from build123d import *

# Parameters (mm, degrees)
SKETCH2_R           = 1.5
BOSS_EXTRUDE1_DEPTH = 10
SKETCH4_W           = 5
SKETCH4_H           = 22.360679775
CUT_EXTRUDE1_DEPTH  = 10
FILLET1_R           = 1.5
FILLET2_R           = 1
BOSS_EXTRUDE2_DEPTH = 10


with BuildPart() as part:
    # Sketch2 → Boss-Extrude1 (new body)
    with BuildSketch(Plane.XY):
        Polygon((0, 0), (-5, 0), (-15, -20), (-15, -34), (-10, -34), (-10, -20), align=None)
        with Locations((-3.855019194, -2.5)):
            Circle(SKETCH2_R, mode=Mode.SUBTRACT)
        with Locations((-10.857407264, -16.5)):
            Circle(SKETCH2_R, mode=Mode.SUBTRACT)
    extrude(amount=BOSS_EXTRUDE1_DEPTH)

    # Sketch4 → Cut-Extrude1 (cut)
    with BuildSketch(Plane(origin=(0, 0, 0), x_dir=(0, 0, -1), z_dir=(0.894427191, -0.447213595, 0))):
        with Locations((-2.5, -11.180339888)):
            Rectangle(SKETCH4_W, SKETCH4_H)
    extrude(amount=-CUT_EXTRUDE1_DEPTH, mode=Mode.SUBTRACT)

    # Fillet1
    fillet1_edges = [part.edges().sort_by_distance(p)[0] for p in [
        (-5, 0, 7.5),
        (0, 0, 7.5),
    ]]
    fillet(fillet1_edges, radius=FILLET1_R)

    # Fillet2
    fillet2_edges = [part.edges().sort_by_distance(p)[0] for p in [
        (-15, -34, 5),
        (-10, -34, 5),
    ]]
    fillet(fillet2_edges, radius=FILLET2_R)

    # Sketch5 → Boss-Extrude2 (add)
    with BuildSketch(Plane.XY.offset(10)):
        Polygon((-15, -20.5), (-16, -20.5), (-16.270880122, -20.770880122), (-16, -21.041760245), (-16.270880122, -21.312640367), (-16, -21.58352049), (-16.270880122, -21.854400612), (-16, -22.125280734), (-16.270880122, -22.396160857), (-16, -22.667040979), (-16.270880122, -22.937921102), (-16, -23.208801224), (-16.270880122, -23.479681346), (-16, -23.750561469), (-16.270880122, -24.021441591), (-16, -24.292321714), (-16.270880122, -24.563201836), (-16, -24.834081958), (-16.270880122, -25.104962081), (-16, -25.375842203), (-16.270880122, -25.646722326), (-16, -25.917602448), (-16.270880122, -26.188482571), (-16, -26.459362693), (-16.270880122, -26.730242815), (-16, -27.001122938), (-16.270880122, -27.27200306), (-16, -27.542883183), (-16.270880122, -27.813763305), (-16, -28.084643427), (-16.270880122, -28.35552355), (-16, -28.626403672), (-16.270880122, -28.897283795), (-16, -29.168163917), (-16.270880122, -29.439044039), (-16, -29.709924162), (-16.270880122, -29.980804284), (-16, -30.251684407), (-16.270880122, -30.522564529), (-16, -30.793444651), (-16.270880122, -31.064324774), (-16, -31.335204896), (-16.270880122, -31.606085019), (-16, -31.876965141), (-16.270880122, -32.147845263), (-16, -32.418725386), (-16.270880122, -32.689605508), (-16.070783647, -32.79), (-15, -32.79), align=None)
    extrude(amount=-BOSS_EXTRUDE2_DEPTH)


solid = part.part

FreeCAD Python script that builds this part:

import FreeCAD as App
import Part
import Sketcher
from FreeCAD import Vector


def edges_at(feature, points):
    """Names of the edges that pass closest to the given points."""
    edges = feature.Shape.Edges
    near = lambda p: min(range(len(edges)), key=lambda i: edges[i].distToShape(Part.Vertex(*p))[0])
    return sorted({f"Edge{near(p) + 1}" for p in points})


def add_polygon(sketch, points):
    """Adds a closed chain of lines whose ends are joined by coincident constraints."""
    first, n = sketch.GeometryCount, len(points)
    for a, b in zip(points, points[1:] + points[:1]):
        sketch.addGeometry(Part.LineSegment(App.Vector(*a, 0), App.Vector(*b, 0)), False)
    for i in range(n):
        sketch.addConstraint(Sketcher.Constraint("Coincident", first + i, 2, first + (i + 1) % n, 1))

doc = App.newDocument("Part")
params = doc.addObject("Spreadsheet::Sheet", "Params")
for row, (alias, value) in enumerate([
    ("sketch1_diameter", "3 mm"),
    ("sketch1_width", "5 mm"),
    ("sketch1_height", "14 mm"),
    ("pad1_length", "10 mm"),
    ("sketch2_width", "5 mm"),
    ("pocket1_length", "10 mm"),
    ("fillet_radius", "1.5 mm"),
    ("fillet2_radius", "1 mm"),
    ("sketch3_width", "1 mm"),
    ("sketch3_height", "12.29 mm"),
    ("pad2_length", "10 mm"),
], start=1):
    params.set(f"A{row}", alias)
    params.set(f"B{row}", "=" + value)
    params.setAlias(f"B{row}", alias)

body = doc.addObject("PartDesign::Body", "Body")

# Sketch on XY plane
sketch1 = body.newObject("Sketcher::SketchObject", "Sketch")
sketch1.AttachmentSupport = (doc.getObject("XY_Plane"), [""])
sketch1.MapMode = "FlatFace"
add_polygon(sketch1, [(0, 0), (-5, 0), (-15, -20), (-15, -34), (-10, -34), (-10, -20)])  # lines 0-5
sketch1.addGeometry(Part.Circle(Vector(-10.857407, -16.5, 0), Vector(0, 0, 1), 1.5), False)  # 6
sketch1.addGeometry(Part.Circle(Vector(-3.855019, -2.5, 0), Vector(0, 0, 1), 1.5), False)  # 7
sketch1.addConstraint([
    Sketcher.Constraint("Horizontal", 0),
    Sketcher.Constraint("Vertical", 2),
    Sketcher.Constraint("Horizontal", 3),
    Sketcher.Constraint("Vertical", 4),
    Sketcher.Constraint("Coincident", 5, 2, -1, 1),
    Sketcher.Constraint("Equal", 6, 7),
    Sketcher.Constraint("Parallel", 1, 5),
    Sketcher.Constraint("Horizontal", 1, 2, 4, 2),
    Sketcher.Constraint("Diameter", 6, 3.0),
    Sketcher.Constraint("DistanceX", 0, 2, 0, 1, 5.0),
    Sketcher.Constraint("DistanceY", 2, 2, 2, 1, 14.0),
    Sketcher.Constraint("DistanceX", 1, 2, -1, 1, 15.0),
    Sketcher.Constraint("DistanceY", 1, 2, -1, 1, 20.0),
    Sketcher.Constraint("DistanceY", 6, 3, 7, 3, 14.0),
    Sketcher.Constraint("DistanceY", 6, 3, -1, 1, 16.5),
    Sketcher.Constraint("DistanceX", 7, 3, -1, 1, 3.855019),
    Sketcher.Constraint("DistanceX", 6, 3, 7, 3, 7.002388),
])
sketch1.setExpression("Constraints[14]", "Params.sketch1_diameter")
sketch1.setExpression("Constraints[15]", "Params.sketch1_width")
sketch1.setExpression("Constraints[16]", "Params.sketch1_height")
pad1 = body.newObject("PartDesign::Pad", "Pad")
pad1.Profile = sketch1
pad1.setExpression("Length", "Params.pad1_length")

# Sketch on an angled plane
sketch2 = body.newObject("Sketcher::SketchObject", "Sketch001")
sketch2.Placement = App.Placement(Vector(0, 0, 0), App.Rotation(Vector(0, 0, -1), Vector(0.447213595, 0.894427191, 0), Vector(0.894427191, -0.447213595, 0), "ZXY"))
add_polygon(sketch2, [(-5, 0), (-5, -22.36068), (0, -22.36068), (0, 0)])  # lines 0-3
sketch2.addConstraint([
    Sketcher.Constraint("Vertical", 0),
    Sketcher.Constraint("Horizontal", 1),
    Sketcher.Constraint("Vertical", 2),
    Sketcher.Constraint("Horizontal", 3),
    Sketcher.Constraint("Coincident", 2, 2, -1, 1),
    Sketcher.Constraint("DistanceX", 1, 1, 1, 2, 5.0),
    Sketcher.Constraint("DistanceY", 0, 2, 0, 1, 22.36068),
])
sketch2.setExpression("Constraints[9]", "Params.sketch2_width")
pocket1 = body.newObject("PartDesign::Pocket", "Pocket")
pocket1.Profile = sketch2
pocket1.setExpression("Length", "Params.pocket1_length")
doc.recompute()

fillet = body.newObject("PartDesign::Fillet", "Fillet")
fillet.Base = (pocket1, edges_at(pocket1, [(-5, 0, 7.5), (0, 0, 7.5)]))
fillet.setExpression("Radius", "Params.fillet_radius")
doc.recompute()

fillet2 = body.newObject("PartDesign::Fillet", "Fillet001")
fillet2.Base = (fillet, edges_at(fillet, [(-15, -34, 5), (-10, -34, 5)]))
fillet2.setExpression("Radius", "Params.fillet2_radius")

# Sketch on XY plane
sketch3 = body.newObject("Sketcher::SketchObject", "Sketch002")
sketch3.AttachmentSupport = (doc.getObject("XY_Plane"), [""])
sketch3.MapMode = "FlatFace"
sketch3.AttachmentOffset = App.Placement(Vector(0, 0, 10), App.Rotation())
add_polygon(sketch3, [(-15, -20.5), (-16, -20.5), (-16.27088, -20.77088), (-16, -21.04176), (-16.27088, -21.31264), (-16, -21.58352), (-16.27088, -21.854401), (-16, -22.125281), (-16.27088, -22.396161), (-16, -22.667041), (-16.27088, -22.937921), (-16, -23.208801), (-16.27088, -23.479681), (-16, -23.750561), (-16.27088, -24.021442), (-16, -24.292322), (-16.27088, -24.563202), (-16, -24.834082), (-16.27088, -25.104962), (-16, -25.375842), (-16.27088, -25.646722), (-16, -25.917602), (-16.27088, -26.188483), (-16, -26.459363), (-16.27088, -26.730243), (-16, -27.001123), (-16.27088, -27.272003), (-16, -27.542883), (-16.27088, -27.813763), (-16, -28.084643), (-16.27088, -28.355524), (-16, -28.626404), (-16.27088, -28.897284), (-16, -29.168164), (-16.27088, -29.439044), (-16, -29.709924), (-16.27088, -29.980804), (-16, -30.251684), (-16.27088, -30.522565), (-16, -30.793445), (-16.27088, -31.064325), (-16, -31.335205), (-16.27088, -31.606085), (-16, -31.876965), (-16.27088, -32.147845), (-16, -32.418725), (-16.27088, -32.689606), (-16.070784, -32.79), (-15, -32.79)])  # lines 0-48
sketch3.addConstraint([
    Sketcher.Constraint("Horizontal", 0),
    Sketcher.Constraint("Horizontal", 47),
    Sketcher.Constraint("Vertical", 48),
    Sketcher.Constraint("Perpendicular", 1, 2),
    Sketcher.Constraint("Perpendicular", 2, 3),
    Sketcher.Constraint("Perpendicular", 3, 4),
    Sketcher.Constraint("Perpendicular", 4, 5),
    Sketcher.Constraint("Perpendicular", 5, 6),
    Sketcher.Constraint("Perpendicular", 6, 7),
    Sketcher.Constraint("Perpendicular", 7, 8),
    Sketcher.Constraint("Perpendicular", 8, 9),
    Sketcher.Constraint("Perpendicular", 9, 10),
    Sketcher.Constraint("Perpendicular", 10, 11),
    Sketcher.Constraint("Perpendicular", 11, 12),
    Sketcher.Constraint("Perpendicular", 12, 13),
    Sketcher.Constraint("Perpendicular", 13, 14),
    Sketcher.Constraint("Perpendicular", 14, 15),
    Sketcher.Constraint("Perpendicular", 15, 16),
    Sketcher.Constraint("Perpendicular", 16, 17),
    Sketcher.Constraint("Perpendicular", 17, 18),
    Sketcher.Constraint("Perpendicular", 18, 19),
    Sketcher.Constraint("Perpendicular", 19, 20),
    Sketcher.Constraint("Perpendicular", 20, 21),
    Sketcher.Constraint("Perpendicular", 21, 22),
    Sketcher.Constraint("Perpendicular", 22, 23),
    Sketcher.Constraint("Perpendicular", 23, 24),
    Sketcher.Constraint("Perpendicular", 24, 25),
    Sketcher.Constraint("Perpendicular", 25, 26),
    Sketcher.Constraint("Perpendicular", 26, 27),
    Sketcher.Constraint("Perpendicular", 27, 28),
    Sketcher.Constraint("Perpendicular", 28, 29),
    Sketcher.Constraint("Perpendicular", 29, 30),
    Sketcher.Constraint("Perpendicular", 30, 31),
    Sketcher.Constraint("Perpendicular", 31, 32),
    Sketcher.Constraint("Perpendicular", 32, 33),
    Sketcher.Constraint("Perpendicular", 33, 34),
    Sketcher.Constraint("Perpendicular", 34, 35),
    Sketcher.Constraint("Perpendicular", 35, 36),
    Sketcher.Constraint("Perpendicular", 36, 37),
    Sketcher.Constraint("Perpendicular", 37, 38),
    Sketcher.Constraint("Perpendicular", 38, 39),
    Sketcher.Constraint("Perpendicular", 39, 40),
    Sketcher.Constraint("Perpendicular", 40, 41),
    Sketcher.Constraint("Perpendicular", 41, 42),
    Sketcher.Constraint("Perpendicular", 42, 43),
    Sketcher.Constraint("Perpendicular", 43, 44),
    Sketcher.Constraint("Perpendicular", 44, 45),
    Sketcher.Constraint("Vertical", 0, 2, 2, 2),
    Sketcher.Constraint("Vertical", 1, 2, 3, 2),
    Sketcher.Constraint("Vertical", 2, 2, 4, 2),
    Sketcher.Constraint("Vertical", 3, 2, 5, 2),
    Sketcher.Constraint("Vertical", 4, 2, 6, 2),
    Sketcher.Constraint("Vertical", 5, 2, 7, 2),
    Sketcher.Constraint("Vertical", 6, 2, 8, 2),
    Sketcher.Constraint("Vertical", 7, 2, 9, 2),
    Sketcher.Constraint("Vertical", 8, 2, 10, 2),
    Sketcher.Constraint("Vertical", 9, 2, 11, 2),
    Sketcher.Constraint("Vertical", 10, 2, 12, 2),
    Sketcher.Constraint("Vertical", 11, 2, 13, 2),
    Sketcher.Constraint("Vertical", 12, 2, 14, 2),
    Sketcher.Constraint("Vertical", 13, 2, 15, 2),
    Sketcher.Constraint("Vertical", 14, 2, 16, 2),
    Sketcher.Constraint("Vertical", 15, 2, 17, 2),
    Sketcher.Constraint("Vertical", 16, 2, 18, 2),
    Sketcher.Constraint("Vertical", 17, 2, 19, 2),
    Sketcher.Constraint("Vertical", 18, 2, 20, 2),
    Sketcher.Constraint("Vertical", 19, 2, 21, 2),
    Sketcher.Constraint("Vertical", 20, 2, 22, 2),
    Sketcher.Constraint("Vertical", 21, 2, 23, 2),
    Sketcher.Constraint("Vertical", 22, 2, 24, 2),
    Sketcher.Constraint("Vertical", 23, 2, 25, 2),
    Sketcher.Constraint("Vertical", 24, 2, 26, 2),
    Sketcher.Constraint("Vertical", 25, 2, 27, 2),
    Sketcher.Constraint("Vertical", 26, 2, 28, 2),
    Sketcher.Constraint("Vertical", 27, 2, 29, 2),
    Sketcher.Constraint("Vertical", 28, 2, 30, 2),
    Sketcher.Constraint("Vertical", 29, 2, 31, 2),
    Sketcher.Constraint("Vertical", 30, 2, 32, 2),
    Sketcher.Constraint("Vertical", 31, 2, 33, 2),
    Sketcher.Constraint("Vertical", 32, 2, 34, 2),
    Sketcher.Constraint("Vertical", 33, 2, 35, 2),
    Sketcher.Constraint("Vertical", 34, 2, 36, 2),
    Sketcher.Constraint("Vertical", 35, 2, 37, 2),
    Sketcher.Constraint("Vertical", 36, 2, 38, 2),
    Sketcher.Constraint("Vertical", 37, 2, 39, 2),
    Sketcher.Constraint("Vertical", 38, 2, 40, 2),
    Sketcher.Constraint("Vertical", 39, 2, 41, 2),
    Sketcher.Constraint("Vertical", 40, 2, 42, 2),
    Sketcher.Constraint("Vertical", 41, 2, 43, 2),
    Sketcher.Constraint("Vertical", 42, 2, 44, 2),
    Sketcher.Constraint("Vertical", 43, 2, 45, 2),
    Sketcher.Constraint("Equal", 1, 2),
    Sketcher.Constraint("DistanceX", 0, 2, 0, 1, 1.0),
    Sketcher.Constraint("DistanceX", 0, 2, -1, 1, 16.0),
    Sketcher.Constraint("DistanceY", 48, 1, 48, 2, 12.29),
    Sketcher.Constraint("DistanceY", 0, 2, -1, 1, 20.5),
    Sketcher.Constraint("DistanceY", 5, 2, -1, 1, 21.854401),
    Sketcher.Constraint("Distance", 46, 0.22387),
])
sketch3.setExpression("Constraints[141]", "Params.sketch3_width")
sketch3.setExpression("Constraints[143]", "Params.sketch3_height")
pad2 = body.newObject("PartDesign::Pad", "Pad001")
pad2.Profile = sketch3
pad2.setExpression("Length", "Params.pad2_length")
pad2.Reversed = True

doc.recompute()
